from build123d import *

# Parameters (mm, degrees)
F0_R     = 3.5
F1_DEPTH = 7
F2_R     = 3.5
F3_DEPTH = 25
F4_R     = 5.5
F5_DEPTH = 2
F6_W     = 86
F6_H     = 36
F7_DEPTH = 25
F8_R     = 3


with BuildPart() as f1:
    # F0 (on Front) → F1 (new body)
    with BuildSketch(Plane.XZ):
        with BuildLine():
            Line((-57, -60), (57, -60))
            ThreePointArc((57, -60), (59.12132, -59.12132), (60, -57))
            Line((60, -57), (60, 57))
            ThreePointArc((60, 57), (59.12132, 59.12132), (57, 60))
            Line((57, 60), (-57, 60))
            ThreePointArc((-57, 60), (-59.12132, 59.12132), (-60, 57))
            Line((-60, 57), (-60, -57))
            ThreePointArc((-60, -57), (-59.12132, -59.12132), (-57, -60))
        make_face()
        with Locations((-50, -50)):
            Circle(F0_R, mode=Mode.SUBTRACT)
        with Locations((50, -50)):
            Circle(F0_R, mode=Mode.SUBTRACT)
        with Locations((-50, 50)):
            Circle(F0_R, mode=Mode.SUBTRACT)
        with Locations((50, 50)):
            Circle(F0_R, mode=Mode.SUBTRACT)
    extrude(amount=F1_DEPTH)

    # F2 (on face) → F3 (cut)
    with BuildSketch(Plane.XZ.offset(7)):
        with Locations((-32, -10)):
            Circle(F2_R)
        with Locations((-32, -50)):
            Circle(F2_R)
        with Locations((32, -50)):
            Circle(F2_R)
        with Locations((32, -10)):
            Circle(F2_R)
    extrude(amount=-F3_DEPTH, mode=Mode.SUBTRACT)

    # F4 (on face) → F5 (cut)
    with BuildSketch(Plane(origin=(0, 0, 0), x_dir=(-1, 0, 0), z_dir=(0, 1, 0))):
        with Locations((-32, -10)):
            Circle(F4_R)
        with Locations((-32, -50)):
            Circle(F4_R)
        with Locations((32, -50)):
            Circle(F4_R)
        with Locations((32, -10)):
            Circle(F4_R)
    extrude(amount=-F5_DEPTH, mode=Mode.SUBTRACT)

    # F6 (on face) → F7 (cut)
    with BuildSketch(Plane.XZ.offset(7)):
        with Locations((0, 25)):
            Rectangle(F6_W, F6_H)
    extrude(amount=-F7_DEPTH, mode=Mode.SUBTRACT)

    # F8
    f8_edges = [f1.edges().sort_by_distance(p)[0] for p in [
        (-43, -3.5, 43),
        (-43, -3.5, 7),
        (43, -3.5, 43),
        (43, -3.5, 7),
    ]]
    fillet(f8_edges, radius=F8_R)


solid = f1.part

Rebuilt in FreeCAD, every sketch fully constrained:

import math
import FreeCAD as App
import Part
import Sketcher

V = App.Vector
Q = App.Units.Quantity


def edges_at(feature, points):
    """Names of the edges that pass closest to the given points."""
    edges = feature.Shape.Edges
    near = lambda p: min(range(len(edges)), key=lambda i: edges[i].distToShape(Part.Vertex(*p))[0])
    return sorted({f"Edge{near(p) + 1}" for p in points})


def add_polygon(sketch, points):
    """Adds a closed chain of lines whose ends are joined by coincident constraints."""
    first, n = sketch.GeometryCount, len(points)
    for a, b in zip(points, points[1:] + points[:1]):
        sketch.addGeometry(Part.LineSegment(App.Vector(*a, 0), App.Vector(*b, 0)), False)
    for i in range(n):
        sketch.addConstraint(Sketcher.Constraint("Coincident", first + i, 2, first + (i + 1) % n, 1))

doc = App.newDocument("Part")
body = doc.addObject("PartDesign::Body", "Body")

# Sketch on XZ plane
sketch1 = body.newObject("Sketcher::SketchObject", "Sketch")
sketch1.AttachmentSupport = (doc.getObject("XZ_Plane"), [""])
sketch1.MapMode = "FlatFace"
sketch1.addGeometry([
    Part.LineSegment(V(-57, -60, 0), V(57, -60, 0)),  # 0
    Part.ArcOfCircle(Part.Circle(V(57, -57, 0), V(0, 0, 1), 3), math.radians(-90), math.radians(0)),  # 1
    Part.LineSegment(V(60, -57, 0), V(60, 57, 0)),  # 2
    Part.ArcOfCircle(Part.Circle(V(57, 57, 0), V(0, 0, 1), 3), math.radians(0), math.radians(90)),  # 3
    Part.LineSegment(V(57, 60, 0), V(-57, 60, 0)),  # 4
    Part.ArcOfCircle(Part.Circle(V(-57, 57, 0), V(0, 0, 1), 3), math.radians(90), math.radians(180)),  # 5
    Part.LineSegment(V(-60, 57, 0), V(-60, -57, 0)),  # 6
    Part.ArcOfCircle(Part.Circle(V(-57, -57, 0), V(0, 0, 1), 3), math.radians(-180), math.radians(-90)),  # 7
    Part.Circle(V(-50, -50, 0), V(0, 0, 1), 3.5),  # 8
    Part.Circle(V(50, -50, 0), V(0, 0, 1), 3.5),  # 9
    Part.Circle(V(-50, 50, 0), V(0, 0, 1), 3.5),  # 10
    Part.Circle(V(50, 50, 0), V(0, 0, 1), 3.5),  # 11
], False)
sketch1.addConstraint([
    Sketcher.Constraint("Tangent", 0, 2, 1, 1),
    Sketcher.Constraint("Tangent", 1, 2, 2, 1),
    Sketcher.Constraint("Tangent", 2, 2, 3, 1),
    Sketcher.Constraint("Tangent", 3, 2, 4, 1),
    Sketcher.Constraint("Tangent", 4, 2, 5, 1),
    Sketcher.Constraint("Tangent", 5, 2, 6, 1),
    Sketcher.Constraint("Tangent", 6, 2, 7, 1),
    Sketcher.Constraint("Tangent", 7, 2, 0, 1),
    Sketcher.Constraint("Horizontal", 0),
    Sketcher.Constraint("Vertical", 2),
    Sketcher.Constraint("Horizontal", 4),
    Sketcher.Constraint("Vertical", 6),
    Sketcher.Constraint("Equal", 1, 3),
    Sketcher.Constraint("Equal", 3, 5),
    Sketcher.Constraint("Equal", 5, 7),
    Sketcher.Constraint("Equal", 8, 9),
    Sketcher.Constraint("Equal", 9, 10),
    Sketcher.Constraint("Equal", 10, 11),
    Sketcher.Constraint("Symmetric", 1, 3, 5, 3, -1, 1),
    Sketcher.Constraint("Symmetric", 9, 3, 10, 3, -1, 1),
    Sketcher.Constraint("Symmetric", 8, 3, 11, 3, -1, 1),
    Sketcher.Constraint("Symmetric", 8, 3, 9, 3, -2),
    Sketcher.Constraint("Equal", 4, 2),
    Sketcher.Constraint("Diameter", 8, Q("7 mm")),
    Sketcher.Constraint("Radius", 1, Q("3.000001 mm")),
    Sketcher.Constraint("DistanceX", 0, 1, 0, 2, Q("114 mm")),
    Sketcher.Constraint("DistanceX", 8, 3, -1, 1, Q("50 mm")),
    Sketcher.Constraint("DistanceY", 8, 3, -1, 1, Q("50 mm")),
])
pad1 = body.newObject("PartDesign::Pad", "Pad")
pad1.Profile = sketch1
pad1.Length = 7

# Sketch on XZ plane
sketch2 = body.newObject("Sketcher::SketchObject", "Sketch001")
sketch2.AttachmentSupport = (doc.getObject("XZ_Plane"), [""])
sketch2.MapMode = "FlatFace"
sketch2.AttachmentOffset = App.Placement(V(0, 0, 7), App.Rotation())
sketch2.addGeometry([
    Part.Circle(V(-32, -10, 0), V(0, 0, 1), 3.5),
    Part.Circle(V(-32, -50, 0), V(0, 0, 1), 3.5),
    Part.Circle(V(32, -50, 0), V(0, 0, 1), 3.5),
    Part.Circle(V(32, -10, 0), V(0, 0, 1), 3.5),
], False)
sketch2.addConstraint([
    Sketcher.Constraint("Equal", 0, 1),
    Sketcher.Constraint("Equal", 1, 2),
    Sketcher.Constraint("Equal", 2, 3),
    Sketcher.Constraint("Symmetric", 1, 3, 2, 3, -2),
    Sketcher.Constraint("Symmetric", 0, 3, 3, 3, -2),
    Sketcher.Constraint("Vertical", 0, 3, 1, 3),
    Sketcher.Constraint("Diameter", 0, Q("7 mm")),
    Sketcher.Constraint("DistanceX", 0, 3, -1, 1, Q("32 mm")),
    Sketcher.Constraint("DistanceY", 0, 3, -1, 1, Q("10 mm")),
    Sketcher.Constraint("DistanceY", 1, 3, -1, 1, Q("50 mm")),
])
pocket1 = body.newObject("PartDesign::Pocket", "Pocket")
pocket1.Profile = sketch2
pocket1.Length = 25

# Sketch on XZ plane
sketch3 = body.newObject("Sketcher::SketchObject", "Sketch002")
sketch3.AttachmentSupport = (doc.getObject("XZ_Plane"), [""])
sketch3.MapMode = "FlatFace"
sketch3.addGeometry([
    Part.Circle(V(32, -10, 0), V(0, 0, 1), 6),
    Part.Circle(V(32, -50, 0), V(0, 0, 1), 6),
    Part.Circle(V(-32, -50, 0), V(0, 0, 1), 6),
    Part.Circle(V(-32, -10, 0), V(0, 0, 1), 6),
], False)
sketch3.addConstraint([
    Sketcher.Constraint("Equal", 0, 1),
    Sketcher.Constraint("Equal", 1, 2),
    Sketcher.Constraint("Equal", 2, 3),
    Sketcher.Constraint("Symmetric", 1, 3, 2, 3, -2),
    Sketcher.Constraint("Symmetric", 0, 3, 3, 3, -2),
    Sketcher.Constraint("Vertical", 0, 3, 1, 3),
    Sketcher.Constraint("Diameter", 0, Q("11 mm")),
    Sketcher.Constraint("DistanceX", -1, 1, 0, 3, Q("32 mm")),
    Sketcher.Constraint("DistanceY", 0, 3, -1, 1, Q("10 mm")),
    Sketcher.Constraint("DistanceY", 1, 3, -1, 1, Q("50 mm")),
])
pocket2 = body.newObject("PartDesign::Pocket", "Pocket001")
pocket2.Profile = sketch3
pocket2.Length = 2
pocket2.Reversed = True

# Sketch on XZ plane
sketch4 = body.newObject("Sketcher::SketchObject", "Sketch003")
sketch4.AttachmentSupport = (doc.getObject("XZ_Plane"), [""])
sketch4.MapMode = "FlatFace"
sketch4.AttachmentOffset = App.Placement(V(0, 0, 7), App.Rotation())
add_polygon(sketch4, [(-43, 43), (-43, 7), (43, 7), (43, 43)])  # lines 0-3
sketch4.addConstraint([
    Sketcher.Constraint("Vertical", 0),
    Sketcher.Constraint("Horizontal", 1),
    Sketcher.Constraint("Vertical", 2),
    Sketcher.Constraint("Horizontal", 3),
    Sketcher.Constraint("DistanceX", 1, 1, 1, 2, Q("86 mm")),
    Sketcher.Constraint("DistanceY", 0, 2, 0, 1, Q("36 mm")),
    Sketcher.Constraint("DistanceX", 0, 2, -1, 1, Q("43 mm")),
    Sketcher.Constraint("DistanceY", -1, 1, 0, 2, Q("7 mm")),
])
pocket3 = body.newObject("PartDesign::Pocket", "Pocket002")
pocket3.Profile = sketch4
pocket3.Length = 25
doc.recompute()

fillet = body.newObject("PartDesign::Fillet", "Fillet")
fillet.Base = (pocket3, edges_at(pocket3, [
    (-43, -3.5, 43),
    (-43, -3.5, 7),
    (43, -3.5, 43),
    (43, -3.5, 7),
]))
fillet.Radius = 3

doc.recompute()
